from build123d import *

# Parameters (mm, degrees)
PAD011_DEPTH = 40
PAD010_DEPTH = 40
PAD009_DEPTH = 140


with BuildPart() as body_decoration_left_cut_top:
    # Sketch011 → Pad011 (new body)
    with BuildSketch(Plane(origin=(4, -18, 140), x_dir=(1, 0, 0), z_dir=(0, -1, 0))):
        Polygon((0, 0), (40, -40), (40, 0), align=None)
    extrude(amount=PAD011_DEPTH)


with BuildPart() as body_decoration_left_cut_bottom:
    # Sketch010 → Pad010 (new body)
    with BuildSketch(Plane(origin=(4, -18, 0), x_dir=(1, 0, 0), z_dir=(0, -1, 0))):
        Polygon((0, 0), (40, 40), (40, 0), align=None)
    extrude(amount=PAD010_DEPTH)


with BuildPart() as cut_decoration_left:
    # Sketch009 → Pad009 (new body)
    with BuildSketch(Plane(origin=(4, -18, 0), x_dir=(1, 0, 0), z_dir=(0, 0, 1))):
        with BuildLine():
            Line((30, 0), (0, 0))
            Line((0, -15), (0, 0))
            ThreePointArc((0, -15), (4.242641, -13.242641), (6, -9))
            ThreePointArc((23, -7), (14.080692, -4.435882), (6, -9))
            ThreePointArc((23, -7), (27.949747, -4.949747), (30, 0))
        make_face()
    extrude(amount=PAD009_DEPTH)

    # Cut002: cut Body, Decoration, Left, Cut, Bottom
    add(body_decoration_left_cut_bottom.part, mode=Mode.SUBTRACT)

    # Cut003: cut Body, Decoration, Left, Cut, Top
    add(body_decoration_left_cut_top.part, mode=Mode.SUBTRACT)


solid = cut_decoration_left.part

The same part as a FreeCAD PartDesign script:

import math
import FreeCAD as App
import Part
import Sketcher

V = App.Vector
Q = App.Units.Quantity

doc = App.newDocument("Part")
body = doc.addObject("PartDesign::Body", "Body")

# Sketch on XZ plane
sketch1 = doc.addObject("Sketcher::SketchObject", "Sketch")
body.addObject(sketch1)
sketch1.AttachmentSupport = (doc.XZ_Plane, [""])
sketch1.MapMode = "FlatFace"
sketch1.AttachmentOffset = App.Placement(V(0, 0, 18), App.Rotation())
sketch1.addGeometry([
    Part.LineSegment(V(4, 140, 0), V(44, 100, 0)),
    Part.LineSegment(V(44, 100, 0), V(44, 140, 0)),
    Part.LineSegment(V(44, 140, 0), V(4, 140, 0)),
], False)
sketch1.addConstraint([
    Sketcher.Constraint("Coincident", 0, 2, 1, 1),
    Sketcher.Constraint("Coincident", 1, 2, 2, 1),
    Sketcher.Constraint("Coincident", 2, 2, 0, 1),
    Sketcher.Constraint("Vertical", 1),
    Sketcher.Constraint("Horizontal", 2),
    Sketcher.Constraint("Equal", 2, 1),
    Sketcher.Constraint("DistanceX", 2, 2, 2, 1, Q("40 mm")),
    Sketcher.Constraint("DistanceX", -1, 1, 0, 2, Q("44 mm")),
    Sketcher.Constraint("DistanceY", -1, 1, 0, 2, Q("100 mm")),
])
pad1 = doc.addObject("PartDesign::Pad", "Pad")
body.addObject(pad1)
pad1.Profile = sketch1
pad1.Length = 40
body2 = doc.addObject("PartDesign::Body", "Body001")

# Sketch on XZ plane
sketch2 = doc.addObject("Sketcher::SketchObject", "Sketch001")
body2.addObject(sketch2)
sketch2.AttachmentSupport = (doc.getObject("XZ_Plane001"), [""])
sketch2.MapMode = "FlatFace"
sketch2.AttachmentOffset = App.Placement(V(0, 0, 18), App.Rotation())
sketch2.addGeometry([
    Part.LineSegment(V(44, 40, 0), V(4, 0, 0)),
    Part.LineSegment(V(4, 0, 0), V(44, 0, 0)),
    Part.LineSegment(V(44, 0, 0), V(44, 40, 0)),
], False)
sketch2.addConstraint([
    Sketcher.Constraint("Coincident", 0, 2, 1, 1),
    Sketcher.Constraint("Coincident", 1, 2, 2, 1),
    Sketcher.Constraint("Coincident", 2, 2, 0, 1),
    Sketcher.Constraint("Horizontal", 1),
    Sketcher.Constraint("Vertical", 2),
    Sketcher.Constraint("PointOnObject", 0, 2, -1),
    Sketcher.Constraint("Equal", 1, 2),
    Sketcher.Constraint("DistanceX", 1, 1, 1, 2, Q("40 mm")),
    Sketcher.Constraint("DistanceX", -1, 1, 0, 2, Q("4 mm")),
])
pad2 = doc.addObject("PartDesign::Pad", "Pad001")
body2.addObject(pad2)
pad2.Profile = sketch2
pad2.Length = 40
body3 = doc.addObject("PartDesign::Body", "Body002")

# Sketch on XY plane
sketch3 = doc.addObject("Sketcher::SketchObject", "Sketch002")
body3.addObject(sketch3)
sketch3.AttachmentSupport = (doc.getObject("XY_Plane002"), [""])
sketch3.MapMode = "FlatFace"
sketch3.addGeometry([
    Part.LineSegment(V(34, -18, 0), V(4, -18, 0)),  # 0
    Part.LineSegment(V(4, -18, 0), V(4, -33, 0)),  # 1
    Part.ArcOfCircle(Part.Circle(V(4, -27, 0), V(0, 0, 1), 6), math.radians(-90), math.radians(0)),  # 2
    Part.ArcOfCircle(Part.Circle(V(19, -34, 0), V(0, 0, 1), 12), math.radians(51), math.radians(142)),  # 3
    Part.ArcOfCircle(Part.Circle(V(27, -18, 0), V(0, 0, 1), 7), math.radians(-90), math.radians(0)),  # 4
], False)
sketch3.addConstraint([
    Sketcher.Constraint("Coincident", 0, 2, 1, 1),
    Sketcher.Constraint("Coincident", 1, 2, 2, 1),
    Sketcher.Constraint("Coincident", 2, 2, 3, 2),
    Sketcher.Constraint("Coincident", 3, 1, 4, 1),
    Sketcher.Constraint("Coincident", 4, 2, 0, 1),
    Sketcher.Constraint("Horizontal", 0),
    Sketcher.Constraint("Vertical", 1),
    Sketcher.Constraint("Horizontal", 4, 3, 0, 2),
    Sketcher.Constraint("Vertical", 2, 3, 0, 2),
    Sketcher.Constraint("Vertical", 4, 3, 3, 1),
    Sketcher.Constraint("Radius", 2, Q("5.999999 mm")),
    Sketcher.Constraint("Radius", 3, Q("11.999999 mm")),
    Sketcher.Constraint("Radius", 4, Q("7.000002 mm")),
    Sketcher.Constraint("DistanceX", 0, 2, 0, 1, Q("30 mm")),
    Sketcher.Constraint("DistanceY", 1, 2, 1, 1, Q("15 mm")),
    Sketcher.Constraint("DistanceX", -1, 1, 2, 3, Q("4.000001 mm")),
    Sketcher.Constraint("DistanceY", 2, 3, -1, 1, Q("27.000001 mm")),
    Sketcher.Constraint("DistanceY", 2, 2, -1, 1, Q("27 mm")),
])
pad3 = doc.addObject("PartDesign::Pad", "Pad002")
body3.addObject(pad3)
pad3.Profile = sketch3
pad3.Length = 140
doc.recompute()

boolean = doc.addObject("PartDesign::Boolean", "Boolean")
body3.addObject(boolean)
boolean.Type = "Cut"
boolean.addObjects([body2])
doc.recompute()

boolean2 = doc.addObject("PartDesign::Boolean", "Boolean001")
body3.addObject(boolean2)
boolean2.Type = "Cut"
boolean2.addObjects([body])

doc.recompute()
